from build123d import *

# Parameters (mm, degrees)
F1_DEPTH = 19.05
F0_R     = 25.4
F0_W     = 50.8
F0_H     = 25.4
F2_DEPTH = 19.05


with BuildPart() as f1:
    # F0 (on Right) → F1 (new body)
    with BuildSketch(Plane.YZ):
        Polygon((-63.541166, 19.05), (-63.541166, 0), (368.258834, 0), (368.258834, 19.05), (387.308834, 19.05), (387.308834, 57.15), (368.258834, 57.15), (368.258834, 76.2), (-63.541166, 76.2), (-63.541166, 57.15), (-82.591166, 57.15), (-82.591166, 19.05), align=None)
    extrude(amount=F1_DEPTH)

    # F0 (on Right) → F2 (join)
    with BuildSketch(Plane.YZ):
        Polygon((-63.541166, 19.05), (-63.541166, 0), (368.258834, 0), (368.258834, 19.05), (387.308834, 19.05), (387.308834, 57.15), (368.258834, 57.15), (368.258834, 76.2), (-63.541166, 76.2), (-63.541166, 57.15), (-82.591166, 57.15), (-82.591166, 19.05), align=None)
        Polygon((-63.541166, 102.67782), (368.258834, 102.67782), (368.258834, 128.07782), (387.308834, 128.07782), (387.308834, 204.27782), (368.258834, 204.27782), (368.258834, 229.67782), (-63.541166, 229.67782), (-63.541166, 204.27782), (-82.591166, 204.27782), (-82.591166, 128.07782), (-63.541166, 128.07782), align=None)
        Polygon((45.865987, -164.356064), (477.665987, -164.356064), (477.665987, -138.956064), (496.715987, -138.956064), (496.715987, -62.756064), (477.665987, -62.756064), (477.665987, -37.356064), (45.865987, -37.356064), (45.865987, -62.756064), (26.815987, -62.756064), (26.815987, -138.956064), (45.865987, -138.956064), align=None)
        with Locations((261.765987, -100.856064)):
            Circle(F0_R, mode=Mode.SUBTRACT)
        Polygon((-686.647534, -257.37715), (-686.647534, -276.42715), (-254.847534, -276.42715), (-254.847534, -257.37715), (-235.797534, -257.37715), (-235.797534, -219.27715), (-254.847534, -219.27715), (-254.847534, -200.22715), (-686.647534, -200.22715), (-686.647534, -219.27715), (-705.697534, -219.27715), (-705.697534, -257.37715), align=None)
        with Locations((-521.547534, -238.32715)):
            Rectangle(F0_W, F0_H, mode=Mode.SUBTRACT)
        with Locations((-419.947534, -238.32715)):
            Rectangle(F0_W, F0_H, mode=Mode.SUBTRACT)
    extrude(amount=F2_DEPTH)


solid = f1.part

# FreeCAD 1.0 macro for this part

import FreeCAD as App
import Part
import Sketcher
from FreeCAD import Vector
Q = App.Units.Quantity

doc = App.newDocument("Part")
params = doc.addObject("Spreadsheet::Sheet", "Params")
for row, (alias, value) in enumerate([
    ("sketch1_width", "17 in"),
    ("sketch1_height", "1.5 in"),
    ("pad1_length", "0.75 in"),
    ("sketch2_diameter", "2 in"),
    ("sketch2_width", "17 in"),
    ("sketch2_width2", "2 in"),
    ("sketch2_height", "1 in"),
    ("sketch2_height2", "3 in"),
    ("pad2_length", "0.75 in"),
], start=1):
    params.set(f"A{row}", alias)
    params.set(f"B{row}", "=" + value)
    params.setAlias(f"B{row}", alias)

body = doc.addObject("PartDesign::Body", "Body")
body.AllowCompound = True

# Sketch on YZ plane
sketch1 = doc.addObject("Sketcher::SketchObject", "Sketch")
body.addObject(sketch1)
sketch1.AttachmentSupport = (doc.YZ_Plane, [""])
sketch1.MapMode = "FlatFace"
sketch1.addGeometry(Part.LineSegment(Vector(-64, 19, 0), Vector(-64, 0, 0)), False)
sketch1.addGeometry(Part.LineSegment(Vector(-64, 0, 0), Vector(368, 0, 0)), False)
sketch1.addGeometry(Part.LineSegment(Vector(368, 0, 0), Vector(368, 19, 0)), False)
sketch1.addGeometry(Part.LineSegment(Vector(368, 19, 0), Vector(387, 19, 0)), False)
sketch1.addGeometry(Part.LineSegment(Vector(387, 19, 0), Vector(387, 57, 0)), False)
sketch1.addGeometry(Part.LineSegment(Vector(387, 57, 0), Vector(368, 57, 0)), False)
sketch1.addGeometry(Part.LineSegment(Vector(368, 57, 0), Vector(368, 76, 0)), False)
sketch1.addGeometry(Part.LineSegment(Vector(368, 76, 0), Vector(-64, 76, 0)), False)
sketch1.addGeometry(Part.LineSegment(Vector(-64, 76, 0), Vector(-64, 57, 0)), False)
sketch1.addGeometry(Part.LineSegment(Vector(-64, 57, 0), Vector(-83, 57, 0)), False)
sketch1.addGeometry(Part.LineSegment(Vector(-83, 57, 0), Vector(-83, 19, 0)), False)
sketch1.addGeometry(Part.LineSegment(Vector(-83, 19, 0), Vector(-64, 19, 0)), False)
sketch1.addConstraint(Sketcher.Constraint("Coincident", 0, 2, 1, 1))
sketch1.addConstraint(Sketcher.Constraint("Coincident", 1, 2, 2, 1))
sketch1.addConstraint(Sketcher.Constraint("Coincident", 2, 2, 3, 1))
sketch1.addConstraint(Sketcher.Constraint("Coincident", 3, 2, 4, 1))
sketch1.addConstraint(Sketcher.Constraint("Coincident", 4, 2, 5, 1))
sketch1.addConstraint(Sketcher.Constraint("Coincident", 5, 2, 6, 1))
sketch1.addConstraint(Sketcher.Constraint("Coincident", 6, 2, 7, 1))
sketch1.addConstraint(Sketcher.Constraint("Coincident", 7, 2, 8, 1))
sketch1.addConstraint(Sketcher.Constraint("Coincident", 8, 2, 9, 1))
sketch1.addConstraint(Sketcher.Constraint("Coincident", 9, 2, 10, 1))
sketch1.addConstraint(Sketcher.Constraint("Coincident", 10, 2, 11, 1))
sketch1.addConstraint(Sketcher.Constraint("Coincident", 11, 2, 0, 1))
sketch1.addConstraint(Sketcher.Constraint("Vertical", 0))
sketch1.addConstraint(Sketcher.Constraint("Horizontal", 1))
sketch1.addConstraint(Sketcher.Constraint("Vertical", 2))
sketch1.addConstraint(Sketcher.Constraint("Horizontal", 3))
sketch1.addConstraint(Sketcher.Constraint("Vertical", 4))
sketch1.addConstraint(Sketcher.Constraint("Horizontal", 5))
sketch1.addConstraint(Sketcher.Constraint("Vertical", 6))
sketch1.addConstraint(Sketcher.Constraint("Horizontal", 7))
sketch1.addConstraint(Sketcher.Constraint("Vertical", 8))
sketch1.addConstraint(Sketcher.Constraint("Horizontal", 9))
sketch1.addConstraint(Sketcher.Constraint("Vertical", 10))
sketch1.addConstraint(Sketcher.Constraint("Horizontal", 11))
sketch1.addConstraint(Sketcher.Constraint("PointOnObject", 0, 2, -1))
sketch1.addConstraint(Sketcher.Constraint("Horizontal", 5, 2, 8, 2))
sketch1.addConstraint(Sketcher.Constraint("Horizontal", 3, 2, 10, 2))
sketch1.addConstraint(Sketcher.Constraint("Vertical", 2, 2, 5, 2))
sketch1.addConstraint(Sketcher.Constraint("Vertical", 0, 2, 7, 2))
sketch1.addConstraint(Sketcher.Constraint("Equal", 5, 9))
sketch1.addConstraint(Sketcher.Constraint("Equal", 11, 0))
sketch1.addConstraint(Sketcher.Constraint("Equal", 2, 6))
sketch1.addConstraint(Sketcher.Constraint("DistanceX", 1, 1, 1, 2, Q("17 in")))
sketch1.addConstraint(Sketcher.Constraint("DistanceY", 4, 1, 4, 2, Q("1.5 in")))
sketch1.addConstraint(Sketcher.Constraint("DistanceY", -1, 1, 6, 2, Q("3 in")))
sketch1.addConstraint(Sketcher.Constraint("DistanceX", 0, 2, -1, 1, Q("63.541166 mm")))
sketch1.setExpression("Constraints[32]", "Params.sketch1_width")
sketch1.setExpression("Constraints[33]", "Params.sketch1_height")
pad1 = doc.addObject("PartDesign::Pad", "Pad")
body.addObject(pad1)
pad1.Profile = sketch1
pad1.setExpression("Length", "Params.pad1_length")

# Sketch on YZ plane
sketch2 = doc.addObject("Sketcher::SketchObject", "Sketch001")
body.addObject(sketch2)
sketch2.AttachmentSupport = (doc.YZ_Plane, [""])
sketch2.MapMode = "FlatFace"
sketch2.addGeometry(Part.LineSegment(Vector(-64, 19, 0), Vector(-64, 0, 0)), False)
sketch2.addGeometry(Part.LineSegment(Vector(-64, 0, 0), Vector(368, 0, 0)), False)
sketch2.addGeometry(Part.LineSegment(Vector(368, 0, 0), Vector(368, 19, 0)), False)
sketch2.addGeometry(Part.LineSegment(Vector(368, 19, 0), Vector(387, 19, 0)), False)
sketch2.addGeometry(Part.LineSegment(Vector(387, 19, 0), Vector(387, 57, 0)), False)
sketch2.addGeometry(Part.LineSegment(Vector(387, 57, 0), Vector(368, 57, 0)), False)
sketch2.addGeometry(Part.LineSegment(Vector(368, 57, 0), Vector(368, 76, 0)), False)
sketch2.addGeometry(Part.LineSegment(Vector(368, 76, 0), Vector(-64, 76, 0)), False)
sketch2.addGeometry(Part.LineSegment(Vector(-64, 76, 0), Vector(-64, 57, 0)), False)
sketch2.addGeometry(Part.LineSegment(Vector(-64, 57, 0), Vector(-83, 57, 0)), False)
sketch2.addGeometry(Part.LineSegment(Vector(-83, 57, 0), Vector(-83, 19, 0)), False)
sketch2.addGeometry(Part.LineSegment(Vector(-83, 19, 0), Vector(-64, 19, 0)), False)
sketch2.addGeometry(Part.LineSegment(Vector(-64, 103, 0), Vector(368, 103, 0)), False)
sketch2.addGeometry(Part.LineSegment(Vector(368, 103, 0), Vector(368, 128, 0)), False)
sketch2.addGeometry(Part.LineSegment(Vector(368, 128, 0), Vector(387, 128, 0)), False)
sketch2.addGeometry(Part.LineSegment(Vector(387, 128, 0), Vector(387, 204, 0)), False)
sketch2.addGeometry(Part.LineSegment(Vector(387, 204, 0), Vector(368, 204, 0)), False)
sketch2.addGeometry(Part.LineSegment(Vector(368, 204, 0), Vector(368, 230, 0)), False)
sketch2.addGeometry(Part.LineSegment(Vector(368, 230, 0), Vector(-64, 230, 0)), False)
sketch2.addGeometry(Part.LineSegment(Vector(-64, 230, 0), Vector(-64, 204, 0)), False)
sketch2.addGeometry(Part.LineSegment(Vector(-64, 204, 0), Vector(-83, 204, 0)), False)
sketch2.addGeometry(Part.LineSegment(Vector(-83, 204, 0), Vector(-83, 128, 0)), False)
sketch2.addGeometry(Part.LineSegment(Vector(-83, 128, 0), Vector(-64, 128, 0)), False)
sketch2.addGeometry(Part.LineSegment(Vector(-64, 128, 0), Vector(-64, 103, 0)), False)
sketch2.addGeometry(Part.LineSegment(Vector(46, -164, 0), Vector(478, -164, 0)), False)
sketch2.addGeometry(Part.LineSegment(Vector(478, -164, 0), Vector(478, -139, 0)), False)
sketch2.addGeometry(Part.LineSegment(Vector(478, -139, 0), Vector(497, -139, 0)), False)
sketch2.addGeometry(Part.LineSegment(Vector(497, -139, 0), Vector(497, -63, 0)), False)
sketch2.addGeometry(Part.LineSegment(Vector(497, -63, 0), Vector(478, -63, 0)), False)
sketch2.addGeometry(Part.LineSegment(Vector(478, -63, 0), Vector(478, -37, 0)), False)
sketch2.addGeometry(Part.LineSegment(Vector(478, -37, 0), Vector(46, -37, 0)), False)
sketch2.addGeometry(Part.LineSegment(Vector(46, -37, 0), Vector(46, -63, 0)), False)
sketch2.addGeometry(Part.LineSegment(Vector(46, -63, 0), Vector(27, -63, 0)), False)
sketch2.addGeometry(Part.LineSegment(Vector(27, -63, 0), Vector(27, -139, 0)), False)
sketch2.addGeometry(Part.LineSegment(Vector(27, -139, 0), Vector(46, -139, 0)), False)
sketch2.addGeometry(Part.LineSegment(Vector(46, -139, 0), Vector(46, -164, 0)), False)
sketch2.addGeometry(Part.Circle(Vector(262, -101, 0), Vector(0, 0, 1), 25), False)
sketch2.addGeometry(Part.LineSegment(Vector(-687, -257, 0), Vector(-687, -276, 0)), False)
sketch2.addGeometry(Part.LineSegment(Vector(-687, -276, 0), Vector(-255, -276, 0)), False)
sketch2.addGeometry(Part.LineSegment(Vector(-255, -276, 0), Vector(-255, -257, 0)), False)
sketch2.addGeometry(Part.LineSegment(Vector(-255, -257, 0), Vector(-236, -257, 0)), False)
sketch2.addGeometry(Part.LineSegment(Vector(-236, -257, 0), Vector(-236, -219, 0)), False)
sketch2.addGeometry(Part.LineSegment(Vector(-236, -219, 0), Vector(-255, -219, 0)), False)
sketch2.addGeometry(Part.LineSegment(Vector(-255, -219, 0), Vector(-255, -200, 0)), False)
sketch2.addGeometry(Part.LineSegment(Vector(-255, -200, 0), Vector(-687, -200, 0)), False)
sketch2.addGeometry(Part.LineSegment(Vector(-687, -200, 0), Vector(-687, -219, 0)), False)
sketch2.addGeometry(Part.LineSegment(Vector(-687, -219, 0), Vector(-706, -219, 0)), False)
sketch2.addGeometry(Part.LineSegment(Vector(-706, -219, 0), Vector(-706, -257, 0)), False)
sketch2.addGeometry(Part.LineSegment(Vector(-706, -257, 0), Vector(-687, -257, 0)), False)
sketch2.addGeometry(Part.LineSegment(Vector(-496, -251, 0), Vector(-547, -251, 0)), False)
sketch2.addGeometry(Part.LineSegment(Vector(-547, -251, 0), Vector(-547, -226, 0)), False)
sketch2.addGeometry(Part.LineSegment(Vector(-547, -226, 0), Vector(-496, -226, 0)), False)
sketch2.addGeometry(Part.LineSegment(Vector(-496, -226, 0), Vector(-496, -251, 0)), False)
sketch2.addGeometry(Part.LineSegment(Vector(-395, -251, 0), Vector(-445, -251, 0)), False)
sketch2.addGeometry(Part.LineSegment(Vector(-445, -251, 0), Vector(-445, -226, 0)), False)
sketch2.addGeometry(Part.LineSegment(Vector(-445, -226, 0), Vector(-395, -226, 0)), False)
sketch2.addGeometry(Part.LineSegment(Vector(-395, -226, 0), Vector(-395, -251, 0)), False)
sketch2.addConstraint(Sketcher.Constraint("Coincident", 0, 2, 1, 1))
sketch2.addConstraint(Sketcher.Constraint("Coincident", 1, 2, 2, 1))
sketch2.addConstraint(Sketcher.Constraint("Coincident", 2, 2, 3, 1))
sketch2.addConstraint(Sketcher.Constraint("Coincident", 3, 2, 4, 1))
sketch2.addConstraint(Sketcher.Constraint("Coincident", 4, 2, 5, 1))
sketch2.addConstraint(Sketcher.Constraint("Coincident", 5, 2, 6, 1))
sketch2.addConstraint(Sketcher.Constraint("Coincident", 6, 2, 7, 1))
sketch2.addConstraint(Sketcher.Constraint("Coincident", 7, 2, 8, 1))
sketch2.addConstraint(Sketcher.Constraint("Coincident", 8, 2, 9, 1))
sketch2.addConstraint(Sketcher.Constraint("Coincident", 9, 2, 10, 1))
sketch2.addConstraint(Sketcher.Constraint("Coincident", 10, 2, 11, 1))
sketch2.addConstraint(Sketcher.Constraint("Coincident", 11, 2, 0, 1))
sketch2.addConstraint(Sketcher.Constraint("Coincident", 12, 2, 13, 1))
sketch2.addConstraint(Sketcher.Constraint("Coincident", 13, 2, 14, 1))
sketch2.addConstraint(Sketcher.Constraint("Coincident", 14, 2, 15, 1))
sketch2.addConstraint(Sketcher.Constraint("Coincident", 15, 2, 16, 1))
sketch2.addConstraint(Sketcher.Constraint("Coincident", 16, 2, 17, 1))
sketch2.addConstraint(Sketcher.Constraint("Coincident", 17, 2, 18, 1))
sketch2.addConstraint(Sketcher.Constraint("Coincident", 18, 2, 19, 1))
sketch2.addConstraint(Sketcher.Constraint("Coincident", 19, 2, 20, 1))
sketch2.addConstraint(Sketcher.Constraint("Coincident", 20, 2, 21, 1))
sketch2.addConstraint(Sketcher.Constraint("Coincident", 21, 2, 22, 1))
sketch2.addConstraint(Sketcher.Constraint("Coincident", 22, 2, 23, 1))
sketch2.addConstraint(Sketcher.Constraint("Coincident", 23, 2, 12, 1))
sketch2.addConstraint(Sketcher.Constraint("Coincident", 24, 2, 25, 1))
sketch2.addConstraint(Sketcher.Constraint("Coincident", 25, 2, 26, 1))
sketch2.addConstraint(Sketcher.Constraint("Coincident", 26, 2, 27, 1))
sketch2.addConstraint(Sketcher.Constraint("Coincident", 27, 2, 28, 1))
sketch2.addConstraint(Sketcher.Constraint("Coincident", 28, 2, 29, 1))
sketch2.addConstraint(Sketcher.Constraint("Coincident", 29, 2, 30, 1))
sketch2.addConstraint(Sketcher.Constraint("Coincident", 30, 2, 31, 1))
sketch2.addConstraint(Sketcher.Constraint("Coincident", 31, 2, 32, 1))
sketch2.addConstraint(Sketcher.Constraint("Coincident", 32, 2, 33, 1))
sketch2.addConstraint(Sketcher.Constraint("Coincident", 33, 2, 34, 1))
sketch2.addConstraint(Sketcher.Constraint("Coincident", 34, 2, 35, 1))
sketch2.addConstraint(Sketcher.Constraint("Coincident", 35, 2, 24, 1))
sketch2.addConstraint(Sketcher.Constraint("Coincident", 37, 2, 38, 1))
sketch2.addConstraint(Sketcher.Constraint("Coincident", 38, 2, 39, 1))
sketch2.addConstraint(Sketcher.Constraint("Coincident", 39, 2, 40, 1))
sketch2.addConstraint(Sketcher.Constraint("Coincident", 40, 2, 41, 1))
sketch2.addConstraint(Sketcher.Constraint("Coincident", 41, 2, 42, 1))
sketch2.addConstraint(Sketcher.Constraint("Coincident", 42, 2, 43, 1))
sketch2.addConstraint(Sketcher.Constraint("Coincident", 43, 2, 44, 1))
sketch2.addConstraint(Sketcher.Constraint("Coincident", 44, 2, 45, 1))
sketch2.addConstraint(Sketcher.Constraint("Coincident", 45, 2, 46, 1))
sketch2.addConstraint(Sketcher.Constraint("Coincident", 46, 2, 47, 1))
sketch2.addConstraint(Sketcher.Constraint("Coincident", 47, 2, 48, 1))
sketch2.addConstraint(Sketcher.Constraint("Coincident", 48, 2, 37, 1))
sketch2.addConstraint(Sketcher.Constraint("Coincident", 49, 2, 50, 1))
sketch2.addConstraint(Sketcher.Constraint("Coincident", 50, 2, 51, 1))
sketch2.addConstraint(Sketcher.Constraint("Coincident", 51, 2, 52, 1))
sketch2.addConstraint(Sketcher.Constraint("Coincident", 52, 2, 49, 1))
sketch2.addConstraint(Sketcher.Constraint("Coincident", 53, 2, 54, 1))
sketch2.addConstraint(Sketcher.Constraint("Coincident", 54, 2, 55, 1))
sketch2.addConstraint(Sketcher.Constraint("Coincident", 55, 2, 56, 1))
sketch2.addConstraint(Sketcher.Constraint("Coincident", 56, 2, 53, 1))
sketch2.addConstraint(Sketcher.Constraint("Vertical", 0))
sketch2.addConstraint(Sketcher.Constraint("Horizontal", 1))
sketch2.addConstraint(Sketcher.Constraint("Vertical", 2))
sketch2.addConstraint(Sketcher.Constraint("Horizontal", 3))
sketch2.addConstraint(Sketcher.Constraint("Vertical", 4))
sketch2.addConstraint(Sketcher.Constraint("Horizontal", 5))
sketch2.addConstraint(Sketcher.Constraint("Vertical", 6))
sketch2.addConstraint(Sketcher.Constraint("Horizontal", 7))
sketch2.addConstraint(Sketcher.Constraint("Vertical", 8))
sketch2.addConstraint(Sketcher.Constraint("Horizontal", 9))
sketch2.addConstraint(Sketcher.Constraint("Vertical", 10))
sketch2.addConstraint(Sketcher.Constraint("Horizontal", 11))
sketch2.addConstraint(Sketcher.Constraint("Horizontal", 12))
sketch2.addConstraint(Sketcher.Constraint("Vertical", 13))
sketch2.addConstraint(Sketcher.Constraint("Horizontal", 14))
sketch2.addConstraint(Sketcher.Constraint("Vertical", 15))
sketch2.addConstraint(Sketcher.Constraint("Horizontal", 16))
sketch2.addConstraint(Sketcher.Constraint("Vertical", 17))
sketch2.addConstraint(Sketcher.Constraint("Horizontal", 18))
sketch2.addConstraint(Sketcher.Constraint("Vertical", 19))
sketch2.addConstraint(Sketcher.Constraint("Horizontal", 20))
sketch2.addConstraint(Sketcher.Constraint("Vertical", 21))
sketch2.addConstraint(Sketcher.Constraint("Horizontal", 22))
sketch2.addConstraint(Sketcher.Constraint("Vertical", 23))
sketch2.addConstraint(Sketcher.Constraint("Horizontal", 24))
sketch2.addConstraint(Sketcher.Constraint("Vertical", 25))
sketch2.addConstraint(Sketcher.Constraint("Horizontal", 26))
sketch2.addConstraint(Sketcher.Constraint("Vertical", 27))
sketch2.addConstraint(Sketcher.Constraint("Horizontal", 28))
sketch2.addConstraint(Sketcher.Constraint("Vertical", 29))
sketch2.addConstraint(Sketcher.Constraint("Horizontal", 30))
sketch2.addConstraint(Sketcher.Constraint("Vertical", 31))
sketch2.addConstraint(Sketcher.Constraint("Horizontal", 32))
sketch2.addConstraint(Sketcher.Constraint("Vertical", 33))
sketch2.addConstraint(Sketcher.Constraint("Horizontal", 34))
sketch2.addConstraint(Sketcher.Constraint("Vertical", 35))
sketch2.addConstraint(Sketcher.Constraint("Vertical", 37))
sketch2.addConstraint(Sketcher.Constraint("Horizontal", 38))
sketch2.addConstraint(Sketcher.Constraint("Vertical", 39))
sketch2.addConstraint(Sketcher.Constraint("Horizontal", 40))
sketch2.addConstraint(Sketcher.Constraint("Vertical", 41))
sketch2.addConstraint(Sketcher.Constraint("Horizontal", 42))
sketch2.addConstraint(Sketcher.Constraint("Vertical", 43))
sketch2.addConstraint(Sketcher.Constraint("Horizontal", 44))
sketch2.addConstraint(Sketcher.Constraint("Vertical", 45))
sketch2.addConstraint(Sketcher.Constraint("Horizontal", 46))
sketch2.addConstraint(Sketcher.Constraint("Vertical", 47))
sketch2.addConstraint(Sketcher.Constraint("Horizontal", 48))
sketch2.addConstraint(Sketcher.Constraint("Horizontal", 49))
sketch2.addConstraint(Sketcher.Constraint("Vertical", 50))
sketch2.addConstraint(Sketcher.Constraint("Horizontal", 51))
sketch2.addConstraint(Sketcher.Constraint("Vertical", 52))
sketch2.addConstraint(Sketcher.Constraint("Horizontal", 53))
sketch2.addConstraint(Sketcher.Constraint("Vertical", 54))
sketch2.addConstraint(Sketcher.Constraint("Horizontal", 55))
sketch2.addConstraint(Sketcher.Constraint("Vertical", 56))
sketch2.addConstraint(Sketcher.Constraint("PointOnObject", 0, 2, -1))
sketch2.addConstraint(Sketcher.Constraint("Horizontal", 5, 2, 8, 2))
sketch2.addConstraint(Sketcher.Constraint("Horizontal", 3, 2, 10, 2))
sketch2.addConstraint(Sketcher.Constraint("Horizontal", 16, 2, 19, 2))
sketch2.addConstraint(Sketcher.Constraint("Horizontal", 14, 2, 21, 2))
sketch2.addConstraint(Sketcher.Constraint("Horizontal", 28, 2, 31, 2))
sketch2.addConstraint(Sketcher.Constraint("Horizontal", 26, 2, 33, 2))
sketch2.addConstraint(Sketcher.Constraint("Horizontal", 42, 2, 45, 2))
sketch2.addConstraint(Sketcher.Constraint("Horizontal", 40, 2, 47, 2))
sketch2.addConstraint(Sketcher.Constraint("Horizontal", 52, 2, 53, 2))
sketch2.addConstraint(Sketcher.Constraint("Horizontal", 51, 2, 54, 2))
sketch2.addConstraint(Sketcher.Constraint("Vertical", 2, 2, 5, 2))
sketch2.addConstraint(Sketcher.Constraint("Vertical", 0, 2, 7, 2))
sketch2.addConstraint(Sketcher.Constraint("Vertical", 6, 2, 12, 2))
sketch2.addConstraint(Sketcher.Constraint("Vertical", 4, 2, 14, 2))
sketch2.addConstraint(Sketcher.Constraint("Vertical", 13, 2, 16, 2))
sketch2.addConstraint(Sketcher.Constraint("Vertical", 11, 2, 18, 2))
sketch2.addConstraint(Sketcher.Constraint("Vertical", 10, 2, 20, 2))
sketch2.addConstraint(Sketcher.Constraint("Vertical", 19, 2, 22, 2))
sketch2.addConstraint(Sketcher.Constraint("Vertical", 25, 2, 28, 2))
sketch2.addConstraint(Sketcher.Constraint("Vertical", 31, 2, 34, 2))
sketch2.addConstraint(Sketcher.Constraint("Vertical", 39, 2, 42, 2))
sketch2.addConstraint(Sketcher.Constraint("Vertical", 37, 2, 44, 2))
sketch2.addConstraint(Sketcher.Constraint("Equal", 5, 9))
sketch2.addConstraint(Sketcher.Constraint("Equal", 18, 24))
sketch2.addConstraint(Sketcher.Constraint("Equal", 22, 26))
sketch2.addConstraint(Sketcher.Constraint("Equal", 28, 32))
sketch2.addConstraint(Sketcher.Constraint("Equal", 30, 38))
sketch2.addConstraint(Sketcher.Constraint("Equal", 34, 40))
sketch2.addConstraint(Sketcher.Constraint("Equal", 42, 46))
sketch2.addConstraint(Sketcher.Constraint("Equal", 51, 53))
sketch2.addConstraint(Sketcher.Constraint("Equal", 48, 0))
sketch2.addConstraint(Sketcher.Constraint("Equal", 2, 6))
sketch2.addConstraint(Sketcher.Constraint("Equal", 13, 17))
sketch2.addConstraint(Sketcher.Constraint("Equal", 23, 25))
sketch2.addConstraint(Sketcher.Constraint("Equal", 21, 27))
sketch2.addConstraint(Sketcher.Constraint("Equal", 25, 29))
sketch2.addConstraint(Sketcher.Constraint("Equal", 8, 37))
sketch2.addConstraint(Sketcher.Constraint("Equal", 10, 41))
sketch2.addConstraint(Sketcher.Constraint("Equal", 39, 43))
sketch2.addConstraint(Sketcher.Constraint("Equal", 35, 50))
sketch2.addConstraint(Sketcher.Constraint("Diameter", 36, Q("2 in")))
sketch2.addConstraint(Sketcher.Constraint("DistanceX", 1, 1, 1, 2, Q("17 in")))
sketch2.addConstraint(Sketcher.Constraint("DistanceX", 49, 2, 49, 1, Q("2 in")))
sketch2.addConstraint(Sketcher.Constraint("DistanceY", 13, 1, 13, 2, Q("1 in")))
sketch2.addConstraint(Sketcher.Constraint("DistanceY", 15, 1, 15, 2, Q("3 in")))
sketch2.addConstraint(Sketcher.Constraint("DistanceY", 4, 1, 4, 2, Q("1.5 in")))
sketch2.addConstraint(Sketcher.Constraint("DistanceY", -1, 1, 6, 2, Q("3 in")))
sketch2.addConstraint(Sketcher.Constraint("DistanceY", 37, 2, 49, 2, Q("1 in")))
sketch2.addConstraint(Sketcher.Constraint("DistanceX", 52, 2, 53, 2, Q("2 in")))
sketch2.addConstraint(Sketcher.Constraint("DistanceX", 36, 3, 24, 2, Q("8.5 in")))
sketch2.addConstraint(Sketcher.Constraint("DistanceY", 24, 2, 36, 3, Q("2.5 in")))
sketch2.addConstraint(Sketcher.Constraint("DistanceX", 48, 2, 49, 2, Q("5.5 in")))
sketch2.addConstraint(Sketcher.Constraint("DistanceY", -1, 1, 12, 2, Q("102.67782 mm")))
sketch2.addConstraint(Sketcher.Constraint("DistanceY", 37, 2, -1, 1, Q("276.42715 mm")))
sketch2.addConstraint(Sketcher.Constraint("DistanceX", 37, 2, 0, 2, Q("623.106368 mm")))
sketch2.addConstraint(Sketcher.Constraint("DistanceX", 38, 2, 33, 2, Q("281.663521 mm")))
sketch2.addConstraint(Sketcher.Constraint("DistanceX", -1, 1, 36, 3, Q("261.765987 mm")))
sketch2.addConstraint(Sketcher.Constraint("DistanceY", 36, 3, -1, 1, Q("100.856064 mm")))
sketch2.setExpression("Constraints[153]", "Params.sketch2_diameter")
sketch2.setExpression("Constraints[154]", "Params.sketch2_width")
sketch2.setExpression("Constraints[155]", "Params.sketch2_width2")
sketch2.setExpression("Constraints[156]", "Params.sketch2_height")
sketch2.setExpression("Constraints[157]", "Params.sketch2_height2")
pad2 = doc.addObject("PartDesign::Pad", "Pad001")
body.addObject(pad2)
pad2.Profile = sketch2
pad2.setExpression("Length", "Params.pad2_length")

doc.recompute()
